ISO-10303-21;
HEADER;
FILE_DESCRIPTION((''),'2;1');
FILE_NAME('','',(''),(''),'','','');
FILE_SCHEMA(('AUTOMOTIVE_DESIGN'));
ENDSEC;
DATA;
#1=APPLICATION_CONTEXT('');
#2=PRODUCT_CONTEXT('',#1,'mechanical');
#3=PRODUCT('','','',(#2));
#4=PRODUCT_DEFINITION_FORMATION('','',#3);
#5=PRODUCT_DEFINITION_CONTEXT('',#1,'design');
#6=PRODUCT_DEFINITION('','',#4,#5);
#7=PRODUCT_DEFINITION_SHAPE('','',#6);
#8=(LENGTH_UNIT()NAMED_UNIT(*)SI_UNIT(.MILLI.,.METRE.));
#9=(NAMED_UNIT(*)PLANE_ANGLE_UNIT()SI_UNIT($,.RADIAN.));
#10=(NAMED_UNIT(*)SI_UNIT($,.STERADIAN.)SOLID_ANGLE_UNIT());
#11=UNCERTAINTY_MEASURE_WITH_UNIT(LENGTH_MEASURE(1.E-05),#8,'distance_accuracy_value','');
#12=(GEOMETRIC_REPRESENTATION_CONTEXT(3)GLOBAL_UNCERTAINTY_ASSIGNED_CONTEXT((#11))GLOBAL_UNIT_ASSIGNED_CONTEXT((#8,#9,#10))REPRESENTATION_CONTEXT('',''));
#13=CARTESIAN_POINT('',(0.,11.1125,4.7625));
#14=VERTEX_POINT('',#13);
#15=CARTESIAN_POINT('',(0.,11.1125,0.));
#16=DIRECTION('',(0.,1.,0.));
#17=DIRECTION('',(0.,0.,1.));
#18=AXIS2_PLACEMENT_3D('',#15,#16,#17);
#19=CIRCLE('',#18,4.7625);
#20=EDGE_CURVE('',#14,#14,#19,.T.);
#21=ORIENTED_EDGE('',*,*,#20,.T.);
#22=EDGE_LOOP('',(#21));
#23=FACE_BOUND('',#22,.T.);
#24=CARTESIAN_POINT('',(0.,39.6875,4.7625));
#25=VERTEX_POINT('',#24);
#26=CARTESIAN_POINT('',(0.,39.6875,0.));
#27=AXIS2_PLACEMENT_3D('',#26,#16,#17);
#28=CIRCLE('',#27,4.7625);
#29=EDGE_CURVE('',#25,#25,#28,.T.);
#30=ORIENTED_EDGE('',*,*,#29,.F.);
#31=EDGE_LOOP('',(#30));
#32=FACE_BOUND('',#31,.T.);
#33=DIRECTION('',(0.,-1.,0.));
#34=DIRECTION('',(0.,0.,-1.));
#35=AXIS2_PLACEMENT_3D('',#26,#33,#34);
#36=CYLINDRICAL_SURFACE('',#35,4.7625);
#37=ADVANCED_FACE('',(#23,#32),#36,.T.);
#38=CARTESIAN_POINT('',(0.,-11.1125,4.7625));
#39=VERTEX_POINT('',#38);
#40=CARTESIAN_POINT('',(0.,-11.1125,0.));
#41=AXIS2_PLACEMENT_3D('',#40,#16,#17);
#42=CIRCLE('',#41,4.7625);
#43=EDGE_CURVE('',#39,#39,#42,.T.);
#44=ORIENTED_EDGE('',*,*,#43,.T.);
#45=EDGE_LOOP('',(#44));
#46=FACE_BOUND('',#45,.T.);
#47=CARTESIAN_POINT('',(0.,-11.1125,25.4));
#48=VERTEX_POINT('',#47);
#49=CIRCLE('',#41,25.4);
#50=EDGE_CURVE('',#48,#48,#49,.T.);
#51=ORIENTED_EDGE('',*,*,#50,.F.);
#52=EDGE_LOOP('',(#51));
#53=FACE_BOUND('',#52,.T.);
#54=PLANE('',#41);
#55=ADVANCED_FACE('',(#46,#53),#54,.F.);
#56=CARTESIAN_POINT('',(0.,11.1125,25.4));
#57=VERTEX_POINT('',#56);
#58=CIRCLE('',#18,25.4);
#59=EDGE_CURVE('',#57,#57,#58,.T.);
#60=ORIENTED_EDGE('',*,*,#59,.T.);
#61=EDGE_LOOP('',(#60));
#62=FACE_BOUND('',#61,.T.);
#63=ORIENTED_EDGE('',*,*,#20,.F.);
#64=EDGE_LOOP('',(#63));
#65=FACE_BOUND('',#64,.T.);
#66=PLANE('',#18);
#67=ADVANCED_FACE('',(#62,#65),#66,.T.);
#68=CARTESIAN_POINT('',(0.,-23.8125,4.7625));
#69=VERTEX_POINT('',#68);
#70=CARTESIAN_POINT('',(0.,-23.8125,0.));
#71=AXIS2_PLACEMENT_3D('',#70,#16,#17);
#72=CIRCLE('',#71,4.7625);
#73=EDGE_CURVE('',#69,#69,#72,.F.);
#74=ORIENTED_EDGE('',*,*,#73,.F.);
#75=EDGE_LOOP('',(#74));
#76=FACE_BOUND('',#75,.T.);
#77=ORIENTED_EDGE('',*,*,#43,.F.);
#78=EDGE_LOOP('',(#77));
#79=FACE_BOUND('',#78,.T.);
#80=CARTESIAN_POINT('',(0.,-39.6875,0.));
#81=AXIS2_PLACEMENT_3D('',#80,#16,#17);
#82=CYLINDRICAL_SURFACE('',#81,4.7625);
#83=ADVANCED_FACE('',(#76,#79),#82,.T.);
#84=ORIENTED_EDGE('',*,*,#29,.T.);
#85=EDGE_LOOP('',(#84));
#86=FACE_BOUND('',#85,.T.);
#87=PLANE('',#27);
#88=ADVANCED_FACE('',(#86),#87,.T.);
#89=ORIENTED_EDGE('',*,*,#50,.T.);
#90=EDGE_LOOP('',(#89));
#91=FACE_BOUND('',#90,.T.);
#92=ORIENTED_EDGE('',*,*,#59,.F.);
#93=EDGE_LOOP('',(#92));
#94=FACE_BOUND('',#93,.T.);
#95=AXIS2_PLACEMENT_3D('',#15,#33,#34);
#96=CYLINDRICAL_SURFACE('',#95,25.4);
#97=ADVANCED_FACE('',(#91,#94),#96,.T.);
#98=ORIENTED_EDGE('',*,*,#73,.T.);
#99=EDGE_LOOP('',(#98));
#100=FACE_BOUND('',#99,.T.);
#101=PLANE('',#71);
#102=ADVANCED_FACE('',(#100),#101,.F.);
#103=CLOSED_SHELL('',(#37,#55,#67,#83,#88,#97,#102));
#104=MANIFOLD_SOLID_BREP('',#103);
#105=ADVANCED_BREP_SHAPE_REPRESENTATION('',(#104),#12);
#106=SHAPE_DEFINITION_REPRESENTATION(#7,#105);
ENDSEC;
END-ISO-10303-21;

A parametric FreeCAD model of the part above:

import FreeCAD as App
import Part
import Sketcher
from FreeCAD import Vector
Q = App.Units.Quantity

doc = App.newDocument("Part")
body = doc.addObject("PartDesign::Body", "Body")

sketch1 = doc.addObject("Sketcher::SketchObject", "Sketch")
body.addObject(sketch1)
sketch1.AttachmentSupport = (doc.XZ_Plane, [""])
sketch1.MapMode = "FlatFace"
sketch1.addGeometry(Part.Circle(Vector(0, 0, 0), Vector(0, 0, 1), 25.4), False)
sketch1.addConstraint([
    Sketcher.Constraint("Coincident", 0, 3, -1, 1),
    Sketcher.Constraint("Diameter", 0, Q("2 in")),
])
pad1 = doc.addObject("PartDesign::Pad", "Pad")
body.addObject(pad1)
pad1.Profile = sketch1
pad1.Length = Q("0.875 in")
pad1.Midplane = True

sketch2 = doc.addObject("Sketcher::SketchObject", "Sketch001")
body.addObject(sketch2)
sketch2.AttachmentSupport = (doc.XZ_Plane, [""])
sketch2.MapMode = "FlatFace"
sketch2.AttachmentOffset = App.Placement(Vector(0, 0, -0.4375 * 25.4), App.Rotation())
sketch2.addGeometry(Part.Circle(Vector(0, 0, 0), Vector(0, 0, 1), 4.7625), False)
sketch2.addConstraint([
    Sketcher.Constraint("Coincident", 0, 3, -1, 1),
    Sketcher.Constraint("Diameter", 0, Q("0.375 in")),
])
pad2 = doc.addObject("PartDesign::Pad", "Pad001")
body.addObject(pad2)
pad2.Profile = sketch2
pad2.Length = Q("1.125 in")
pad2.Reversed = True
doc.recompute()

mirrored = doc.addObject("PartDesign::Mirrored", "Mirrored")
body.addObject(mirrored)
mirrored.Originals = [pad2]
mirrored.MirrorPlane = (doc.XZ_Plane, [""])
body.Tip = mirrored

sketch3 = doc.addObject("Sketcher::SketchObject", "Sketch002")
body.addObject(sketch3)
sketch3.AttachmentSupport = (doc.XZ_Plane, [""])
sketch3.MapMode = "FlatFace"
sketch3.AttachmentOffset = App.Placement(Vector(0, 0, 1.5625 * 25.4), App.Rotation())
sketch3.addGeometry(Part.Circle(Vector(0, 0, 0), Vector(0, 0, 1), 4.7625), False)
sketch3.addConstraint([
    Sketcher.Constraint("Coincident", 0, 3, -1, 1),
    Sketcher.Constraint("Diameter", 0, Q("0.375 in")),
])
pocket1 = doc.addObject("PartDesign::Pocket", "Pocket")
body.addObject(pocket1)
pocket1.Profile = sketch3
pocket1.Length = Q("0.625 in")

doc.recompute()
